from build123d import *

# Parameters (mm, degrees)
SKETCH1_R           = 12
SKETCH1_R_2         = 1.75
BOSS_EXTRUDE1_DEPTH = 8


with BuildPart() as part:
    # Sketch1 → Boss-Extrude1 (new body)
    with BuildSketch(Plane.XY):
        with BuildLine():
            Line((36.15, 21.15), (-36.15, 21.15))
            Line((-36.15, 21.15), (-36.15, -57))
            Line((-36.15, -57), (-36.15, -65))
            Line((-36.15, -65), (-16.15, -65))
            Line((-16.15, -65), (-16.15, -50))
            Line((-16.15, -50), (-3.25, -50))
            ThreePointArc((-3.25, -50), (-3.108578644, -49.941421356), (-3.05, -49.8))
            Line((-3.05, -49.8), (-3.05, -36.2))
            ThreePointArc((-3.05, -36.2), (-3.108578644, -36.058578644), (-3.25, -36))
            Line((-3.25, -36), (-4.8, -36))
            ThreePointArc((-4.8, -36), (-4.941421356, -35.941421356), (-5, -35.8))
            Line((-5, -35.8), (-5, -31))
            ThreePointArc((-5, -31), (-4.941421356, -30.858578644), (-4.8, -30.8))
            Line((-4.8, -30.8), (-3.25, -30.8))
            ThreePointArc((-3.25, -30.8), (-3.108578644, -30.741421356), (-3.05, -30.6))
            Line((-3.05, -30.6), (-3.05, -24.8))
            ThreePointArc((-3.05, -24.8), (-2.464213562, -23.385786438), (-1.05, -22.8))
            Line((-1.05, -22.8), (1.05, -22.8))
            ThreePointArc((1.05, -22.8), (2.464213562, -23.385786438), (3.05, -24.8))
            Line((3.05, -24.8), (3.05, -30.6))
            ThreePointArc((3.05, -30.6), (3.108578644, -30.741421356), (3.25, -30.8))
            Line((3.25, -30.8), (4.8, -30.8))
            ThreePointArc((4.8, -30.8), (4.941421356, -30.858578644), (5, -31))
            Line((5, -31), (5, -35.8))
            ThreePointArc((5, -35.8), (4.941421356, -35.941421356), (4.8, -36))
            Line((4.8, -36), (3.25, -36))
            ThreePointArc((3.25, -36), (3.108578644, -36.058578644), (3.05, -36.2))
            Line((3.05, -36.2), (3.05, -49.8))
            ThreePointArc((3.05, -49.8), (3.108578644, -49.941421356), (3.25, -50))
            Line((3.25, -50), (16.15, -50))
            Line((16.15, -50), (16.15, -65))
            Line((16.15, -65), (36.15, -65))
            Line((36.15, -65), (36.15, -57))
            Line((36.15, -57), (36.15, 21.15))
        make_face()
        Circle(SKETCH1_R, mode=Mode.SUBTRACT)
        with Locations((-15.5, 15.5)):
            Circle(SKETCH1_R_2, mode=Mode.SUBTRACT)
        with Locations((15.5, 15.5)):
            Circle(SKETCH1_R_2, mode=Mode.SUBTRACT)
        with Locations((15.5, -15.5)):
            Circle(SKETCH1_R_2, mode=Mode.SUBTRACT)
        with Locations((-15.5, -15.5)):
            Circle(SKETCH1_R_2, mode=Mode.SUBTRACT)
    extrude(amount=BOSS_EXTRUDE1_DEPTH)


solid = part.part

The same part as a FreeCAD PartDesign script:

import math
import FreeCAD as App
import Part
import Sketcher

V = App.Vector
Q = App.Units.Quantity

doc = App.newDocument("Part")
body = doc.addObject("PartDesign::Body", "Body")

sketch1 = body.newObject("Sketcher::SketchObject", "Sketch")
sketch1.AttachmentSupport = (doc.getObject("XY_Plane"), [""])
sketch1.MapMode = "FlatFace"
sketch1.addGeometry([
    Part.LineSegment(V(36.15, 21.15, 0), V(-36.15, 21.15, 0)),
    Part.LineSegment(V(-36.15, 21.15, 0), V(-36.15, -65, 0)),
    Part.LineSegment(V(-36.15, -65, 0), V(-16.15, -65, 0)),
    Part.LineSegment(V(-16.15, -65, 0), V(-16.15, -50, 0)),
    Part.LineSegment(V(-16.15, -50, 0), V(-3.25, -50, 0)),
    Part.ArcOfCircle(Part.Circle(V(-3.25, -49.8, 0), V(0, 0, 1), 0.2), math.radians(-90), math.radians(0)),
    Part.LineSegment(V(-3.05, -49.8, 0), V(-3.05, -36.2, 0)),
    Part.ArcOfCircle(Part.Circle(V(-3.25, -36.2, 0), V(0, 0, 1), 0.2), math.radians(0), math.radians(90)),
    Part.LineSegment(V(-3.25, -36, 0), V(-4.8, -36, 0)),
    Part.ArcOfCircle(Part.Circle(V(-4.8, -35.8, 0), V(0, 0, 1), 0.2), math.radians(-180), math.radians(-90)),
    Part.LineSegment(V(-5, -35.8, 0), V(-5, -31, 0)),
    Part.ArcOfCircle(Part.Circle(V(-4.8, -31, 0), V(0, 0, 1), 0.2), math.radians(90), math.radians(180)),
    Part.LineSegment(V(-4.8, -30.8, 0), V(-3.25, -30.8, 0)),
    Part.ArcOfCircle(Part.Circle(V(-3.25, -30.6, 0), V(0, 0, 1), 0.2), math.radians(-90), math.radians(0)),
    Part.LineSegment(V(-3.05, -30.6, 0), V(-3.05, -24.8, 0)),
    Part.ArcOfCircle(Part.Circle(V(-1.05, -24.8, 0), V(0, 0, 1), 2), math.radians(90), math.radians(180)),
    Part.LineSegment(V(-1.05, -22.8, 0), V(1.05, -22.8, 0)),
    Part.ArcOfCircle(Part.Circle(V(1.05, -24.8, 0), V(0, 0, 1), 2), math.radians(0), math.radians(90)),
    Part.LineSegment(V(3.05, -24.8, 0), V(3.05, -30.6, 0)),
    Part.ArcOfCircle(Part.Circle(V(3.25, -30.6, 0), V(0, 0, 1), 0.2), math.radians(-180), math.radians(-90)),
    Part.LineSegment(V(3.25, -30.8, 0), V(4.8, -30.8, 0)),
    Part.ArcOfCircle(Part.Circle(V(4.8, -31, 0), V(0, 0, 1), 0.2), math.radians(0), math.radians(90)),
    Part.LineSegment(V(5, -31, 0), V(5, -35.8, 0)),
    Part.ArcOfCircle(Part.Circle(V(4.8, -35.8, 0), V(0, 0, 1), 0.2), math.radians(-90), math.radians(0)),
    Part.LineSegment(V(4.8, -36, 0), V(3.25, -36, 0)),
    Part.ArcOfCircle(Part.Circle(V(3.25, -36.2, 0), V(0, 0, 1), 0.2), math.radians(90), math.radians(180)),
    Part.LineSegment(V(3.05, -36.2, 0), V(3.05, -49.8, 0)),
    Part.ArcOfCircle(Part.Circle(V(3.25, -49.8, 0), V(0, 0, 1), 0.2), math.radians(-180), math.radians(-90)),
    Part.LineSegment(V(3.25, -50, 0), V(16.15, -50, 0)),
    Part.LineSegment(V(16.15, -50, 0), V(16.15, -65, 0)),
    Part.LineSegment(V(16.15, -65, 0), V(36.15, -65, 0)),
    Part.LineSegment(V(36.15, -65, 0), V(36.15, 21.15, 0)),
    Part.Circle(V(-15.5, -15.5, 0), V(0, 0, 1), 1.75),
    Part.Circle(V(15.5, -15.5, 0), V(0, 0, 1), 1.75),
    Part.Circle(V(0, 0, 0), V(0, 0, 1), 12),
    Part.Circle(V(-15.5, 15.5, 0), V(0, 0, 1), 1.75),
    Part.Circle(V(15.5, 15.5, 0), V(0, 0, 1), 1.75),
], False)
sketch1.addConstraint([
    Sketcher.Constraint("Coincident", 0, 2, 1, 1),
    Sketcher.Constraint("Coincident", 1, 2, 2, 1),
    Sketcher.Constraint("Coincident", 2, 2, 3, 1),
    Sketcher.Constraint("Coincident", 3, 2, 4, 1),
    Sketcher.Constraint("Tangent", 4, 2, 5, 1),
    Sketcher.Constraint("Tangent", 5, 2, 6, 1),
    Sketcher.Constraint("Tangent", 6, 2, 7, 1),
    Sketcher.Constraint("Tangent", 7, 2, 8, 1),
    Sketcher.Constraint("Tangent", 8, 2, 9, 2),
    Sketcher.Constraint("Tangent", 9, 1, 10, 1),
    Sketcher.Constraint("Tangent", 10, 2, 11, 2),
    Sketcher.Constraint("Tangent", 11, 1, 12, 1),
    Sketcher.Constraint("Tangent", 12, 2, 13, 1),
    Sketcher.Constraint("Tangent", 13, 2, 14, 1),
    Sketcher.Constraint("Tangent", 14, 2, 15, 2),
    Sketcher.Constraint("Tangent", 15, 1, 16, 1),
    Sketcher.Constraint("Tangent", 16, 2, 17, 2),
    Sketcher.Constraint("Tangent", 17, 1, 18, 1),
    Sketcher.Constraint("Tangent", 18, 2, 19, 1),
    Sketcher.Constraint("Tangent", 19, 2, 20, 1),
    Sketcher.Constraint("Tangent", 20, 2, 21, 2),
    Sketcher.Constraint("Tangent", 21, 1, 22, 1),
    Sketcher.Constraint("Tangent", 22, 2, 23, 2),
    Sketcher.Constraint("Tangent", 23, 1, 24, 1),
    Sketcher.Constraint("Tangent", 24, 2, 25, 1),
    Sketcher.Constraint("Tangent", 25, 2, 26, 1),
    Sketcher.Constraint("Tangent", 26, 2, 27, 1),
    Sketcher.Constraint("Tangent", 27, 2, 28, 1),
    Sketcher.Constraint("Coincident", 28, 2, 29, 1),
    Sketcher.Constraint("Coincident", 29, 2, 30, 1),
    Sketcher.Constraint("Coincident", 30, 2, 31, 1),
    Sketcher.Constraint("Coincident", 31, 2, 0, 1),
    Sketcher.Constraint("Horizontal", 0),
    Sketcher.Constraint("Vertical", 1),
    Sketcher.Constraint("Horizontal", 2),
    Sketcher.Constraint("Vertical", 3),
    Sketcher.Constraint("Horizontal", 4),
    Sketcher.Constraint("Vertical", 6),
    Sketcher.Constraint("Horizontal", 8),
    Sketcher.Constraint("Vertical", 10),
    Sketcher.Constraint("Horizontal", 12),
    Sketcher.Constraint("Vertical", 14),
    Sketcher.Constraint("Horizontal", 16),
    Sketcher.Constraint("Vertical", 18),
    Sketcher.Constraint("Horizontal", 20),
    Sketcher.Constraint("Vertical", 22),
    Sketcher.Constraint("Horizontal", 24),
    Sketcher.Constraint("Vertical", 26),
    Sketcher.Constraint("Horizontal", 28),
    Sketcher.Constraint("Vertical", 29),
    Sketcher.Constraint("Horizontal", 30),
    Sketcher.Constraint("Vertical", 31),
    Sketcher.Constraint("Coincident", 34, 3, -1, 1),
    Sketcher.Constraint("Equal", 5, 7),
    Sketcher.Constraint("Equal", 7, 9),
    Sketcher.Constraint("Equal", 9, 11),
    Sketcher.Constraint("Equal", 11, 13),
    Sketcher.Constraint("Equal", 15, 17),
    Sketcher.Constraint("Equal", 13, 19),
    Sketcher.Constraint("Equal", 19, 21),
    Sketcher.Constraint("Equal", 21, 23),
    Sketcher.Constraint("Equal", 23, 25),
    Sketcher.Constraint("Equal", 25, 27),
    Sketcher.Constraint("Equal", 32, 33),
    Sketcher.Constraint("Equal", 33, 35),
    Sketcher.Constraint("Equal", 35, 36),
    Sketcher.Constraint("Symmetric", 33, 3, 35, 3, -1, 1),
    Sketcher.Constraint("Symmetric", 32, 3, 36, 3, -1, 1),
    Sketcher.Constraint("Symmetric", 13, 3, 19, 3, -2),
    Sketcher.Constraint("Symmetric", 9, 3, 23, 3, -2),
    Sketcher.Constraint("Symmetric", 5, 3, 27, 3, -2),
    Sketcher.Constraint("Symmetric", 32, 3, 33, 3, -2),
    Sketcher.Constraint("Symmetric", 2, 2, 29, 2, -2),
    Sketcher.Constraint("Vertical", 7, 3, 13, 3),
    Sketcher.Constraint("Equal", 2, 30),
    Sketcher.Constraint("Diameter", 34, Q("24 mm")),
    Sketcher.Constraint("Radius", 15, Q("2 mm")),
    Sketcher.Constraint("Diameter", 32, Q("3.5 mm")),
    Sketcher.Constraint("Radius", 5, Q("0.2 mm")),
    Sketcher.Constraint("DistanceX", 2, 1, 2, 2, Q("20 mm")),
    Sketcher.Constraint("DistanceY", 3, 1, 3, 2, Q("15 mm")),
    Sketcher.Constraint("DistanceX", 0, 2, 0, 1, Q("72.3 mm")),
    Sketcher.Constraint("DistanceX", 4, 1, 4, 2, Q("12.9 mm")),
    Sketcher.Constraint("DistanceY", 6, 1, 6, 2, Q("13.6 mm")),
    Sketcher.Constraint("DistanceY", 10, 1, 10, 2, Q("4.8 mm")),
    Sketcher.Constraint("DistanceY", 14, 1, 14, 2, Q("5.8 mm")),
    Sketcher.Constraint("DistanceY", 11, 3, -1, 1, Q("31 mm")),
    Sketcher.Constraint("DistanceX", 9, 1, -1, 1, Q("5 mm")),
    Sketcher.Constraint("DistanceY", 32, 3, 35, 3, Q("31 mm")),
    Sketcher.Constraint("DistanceX", 35, 3, 33, 3, Q("31 mm")),
    Sketcher.Constraint("DistanceY", 1, 2, 1, 1, Q("86.15 mm")),
])
pad1 = body.newObject("PartDesign::Pad", "Pad")
pad1.Profile = sketch1
pad1.Length = 8

doc.recompute()
